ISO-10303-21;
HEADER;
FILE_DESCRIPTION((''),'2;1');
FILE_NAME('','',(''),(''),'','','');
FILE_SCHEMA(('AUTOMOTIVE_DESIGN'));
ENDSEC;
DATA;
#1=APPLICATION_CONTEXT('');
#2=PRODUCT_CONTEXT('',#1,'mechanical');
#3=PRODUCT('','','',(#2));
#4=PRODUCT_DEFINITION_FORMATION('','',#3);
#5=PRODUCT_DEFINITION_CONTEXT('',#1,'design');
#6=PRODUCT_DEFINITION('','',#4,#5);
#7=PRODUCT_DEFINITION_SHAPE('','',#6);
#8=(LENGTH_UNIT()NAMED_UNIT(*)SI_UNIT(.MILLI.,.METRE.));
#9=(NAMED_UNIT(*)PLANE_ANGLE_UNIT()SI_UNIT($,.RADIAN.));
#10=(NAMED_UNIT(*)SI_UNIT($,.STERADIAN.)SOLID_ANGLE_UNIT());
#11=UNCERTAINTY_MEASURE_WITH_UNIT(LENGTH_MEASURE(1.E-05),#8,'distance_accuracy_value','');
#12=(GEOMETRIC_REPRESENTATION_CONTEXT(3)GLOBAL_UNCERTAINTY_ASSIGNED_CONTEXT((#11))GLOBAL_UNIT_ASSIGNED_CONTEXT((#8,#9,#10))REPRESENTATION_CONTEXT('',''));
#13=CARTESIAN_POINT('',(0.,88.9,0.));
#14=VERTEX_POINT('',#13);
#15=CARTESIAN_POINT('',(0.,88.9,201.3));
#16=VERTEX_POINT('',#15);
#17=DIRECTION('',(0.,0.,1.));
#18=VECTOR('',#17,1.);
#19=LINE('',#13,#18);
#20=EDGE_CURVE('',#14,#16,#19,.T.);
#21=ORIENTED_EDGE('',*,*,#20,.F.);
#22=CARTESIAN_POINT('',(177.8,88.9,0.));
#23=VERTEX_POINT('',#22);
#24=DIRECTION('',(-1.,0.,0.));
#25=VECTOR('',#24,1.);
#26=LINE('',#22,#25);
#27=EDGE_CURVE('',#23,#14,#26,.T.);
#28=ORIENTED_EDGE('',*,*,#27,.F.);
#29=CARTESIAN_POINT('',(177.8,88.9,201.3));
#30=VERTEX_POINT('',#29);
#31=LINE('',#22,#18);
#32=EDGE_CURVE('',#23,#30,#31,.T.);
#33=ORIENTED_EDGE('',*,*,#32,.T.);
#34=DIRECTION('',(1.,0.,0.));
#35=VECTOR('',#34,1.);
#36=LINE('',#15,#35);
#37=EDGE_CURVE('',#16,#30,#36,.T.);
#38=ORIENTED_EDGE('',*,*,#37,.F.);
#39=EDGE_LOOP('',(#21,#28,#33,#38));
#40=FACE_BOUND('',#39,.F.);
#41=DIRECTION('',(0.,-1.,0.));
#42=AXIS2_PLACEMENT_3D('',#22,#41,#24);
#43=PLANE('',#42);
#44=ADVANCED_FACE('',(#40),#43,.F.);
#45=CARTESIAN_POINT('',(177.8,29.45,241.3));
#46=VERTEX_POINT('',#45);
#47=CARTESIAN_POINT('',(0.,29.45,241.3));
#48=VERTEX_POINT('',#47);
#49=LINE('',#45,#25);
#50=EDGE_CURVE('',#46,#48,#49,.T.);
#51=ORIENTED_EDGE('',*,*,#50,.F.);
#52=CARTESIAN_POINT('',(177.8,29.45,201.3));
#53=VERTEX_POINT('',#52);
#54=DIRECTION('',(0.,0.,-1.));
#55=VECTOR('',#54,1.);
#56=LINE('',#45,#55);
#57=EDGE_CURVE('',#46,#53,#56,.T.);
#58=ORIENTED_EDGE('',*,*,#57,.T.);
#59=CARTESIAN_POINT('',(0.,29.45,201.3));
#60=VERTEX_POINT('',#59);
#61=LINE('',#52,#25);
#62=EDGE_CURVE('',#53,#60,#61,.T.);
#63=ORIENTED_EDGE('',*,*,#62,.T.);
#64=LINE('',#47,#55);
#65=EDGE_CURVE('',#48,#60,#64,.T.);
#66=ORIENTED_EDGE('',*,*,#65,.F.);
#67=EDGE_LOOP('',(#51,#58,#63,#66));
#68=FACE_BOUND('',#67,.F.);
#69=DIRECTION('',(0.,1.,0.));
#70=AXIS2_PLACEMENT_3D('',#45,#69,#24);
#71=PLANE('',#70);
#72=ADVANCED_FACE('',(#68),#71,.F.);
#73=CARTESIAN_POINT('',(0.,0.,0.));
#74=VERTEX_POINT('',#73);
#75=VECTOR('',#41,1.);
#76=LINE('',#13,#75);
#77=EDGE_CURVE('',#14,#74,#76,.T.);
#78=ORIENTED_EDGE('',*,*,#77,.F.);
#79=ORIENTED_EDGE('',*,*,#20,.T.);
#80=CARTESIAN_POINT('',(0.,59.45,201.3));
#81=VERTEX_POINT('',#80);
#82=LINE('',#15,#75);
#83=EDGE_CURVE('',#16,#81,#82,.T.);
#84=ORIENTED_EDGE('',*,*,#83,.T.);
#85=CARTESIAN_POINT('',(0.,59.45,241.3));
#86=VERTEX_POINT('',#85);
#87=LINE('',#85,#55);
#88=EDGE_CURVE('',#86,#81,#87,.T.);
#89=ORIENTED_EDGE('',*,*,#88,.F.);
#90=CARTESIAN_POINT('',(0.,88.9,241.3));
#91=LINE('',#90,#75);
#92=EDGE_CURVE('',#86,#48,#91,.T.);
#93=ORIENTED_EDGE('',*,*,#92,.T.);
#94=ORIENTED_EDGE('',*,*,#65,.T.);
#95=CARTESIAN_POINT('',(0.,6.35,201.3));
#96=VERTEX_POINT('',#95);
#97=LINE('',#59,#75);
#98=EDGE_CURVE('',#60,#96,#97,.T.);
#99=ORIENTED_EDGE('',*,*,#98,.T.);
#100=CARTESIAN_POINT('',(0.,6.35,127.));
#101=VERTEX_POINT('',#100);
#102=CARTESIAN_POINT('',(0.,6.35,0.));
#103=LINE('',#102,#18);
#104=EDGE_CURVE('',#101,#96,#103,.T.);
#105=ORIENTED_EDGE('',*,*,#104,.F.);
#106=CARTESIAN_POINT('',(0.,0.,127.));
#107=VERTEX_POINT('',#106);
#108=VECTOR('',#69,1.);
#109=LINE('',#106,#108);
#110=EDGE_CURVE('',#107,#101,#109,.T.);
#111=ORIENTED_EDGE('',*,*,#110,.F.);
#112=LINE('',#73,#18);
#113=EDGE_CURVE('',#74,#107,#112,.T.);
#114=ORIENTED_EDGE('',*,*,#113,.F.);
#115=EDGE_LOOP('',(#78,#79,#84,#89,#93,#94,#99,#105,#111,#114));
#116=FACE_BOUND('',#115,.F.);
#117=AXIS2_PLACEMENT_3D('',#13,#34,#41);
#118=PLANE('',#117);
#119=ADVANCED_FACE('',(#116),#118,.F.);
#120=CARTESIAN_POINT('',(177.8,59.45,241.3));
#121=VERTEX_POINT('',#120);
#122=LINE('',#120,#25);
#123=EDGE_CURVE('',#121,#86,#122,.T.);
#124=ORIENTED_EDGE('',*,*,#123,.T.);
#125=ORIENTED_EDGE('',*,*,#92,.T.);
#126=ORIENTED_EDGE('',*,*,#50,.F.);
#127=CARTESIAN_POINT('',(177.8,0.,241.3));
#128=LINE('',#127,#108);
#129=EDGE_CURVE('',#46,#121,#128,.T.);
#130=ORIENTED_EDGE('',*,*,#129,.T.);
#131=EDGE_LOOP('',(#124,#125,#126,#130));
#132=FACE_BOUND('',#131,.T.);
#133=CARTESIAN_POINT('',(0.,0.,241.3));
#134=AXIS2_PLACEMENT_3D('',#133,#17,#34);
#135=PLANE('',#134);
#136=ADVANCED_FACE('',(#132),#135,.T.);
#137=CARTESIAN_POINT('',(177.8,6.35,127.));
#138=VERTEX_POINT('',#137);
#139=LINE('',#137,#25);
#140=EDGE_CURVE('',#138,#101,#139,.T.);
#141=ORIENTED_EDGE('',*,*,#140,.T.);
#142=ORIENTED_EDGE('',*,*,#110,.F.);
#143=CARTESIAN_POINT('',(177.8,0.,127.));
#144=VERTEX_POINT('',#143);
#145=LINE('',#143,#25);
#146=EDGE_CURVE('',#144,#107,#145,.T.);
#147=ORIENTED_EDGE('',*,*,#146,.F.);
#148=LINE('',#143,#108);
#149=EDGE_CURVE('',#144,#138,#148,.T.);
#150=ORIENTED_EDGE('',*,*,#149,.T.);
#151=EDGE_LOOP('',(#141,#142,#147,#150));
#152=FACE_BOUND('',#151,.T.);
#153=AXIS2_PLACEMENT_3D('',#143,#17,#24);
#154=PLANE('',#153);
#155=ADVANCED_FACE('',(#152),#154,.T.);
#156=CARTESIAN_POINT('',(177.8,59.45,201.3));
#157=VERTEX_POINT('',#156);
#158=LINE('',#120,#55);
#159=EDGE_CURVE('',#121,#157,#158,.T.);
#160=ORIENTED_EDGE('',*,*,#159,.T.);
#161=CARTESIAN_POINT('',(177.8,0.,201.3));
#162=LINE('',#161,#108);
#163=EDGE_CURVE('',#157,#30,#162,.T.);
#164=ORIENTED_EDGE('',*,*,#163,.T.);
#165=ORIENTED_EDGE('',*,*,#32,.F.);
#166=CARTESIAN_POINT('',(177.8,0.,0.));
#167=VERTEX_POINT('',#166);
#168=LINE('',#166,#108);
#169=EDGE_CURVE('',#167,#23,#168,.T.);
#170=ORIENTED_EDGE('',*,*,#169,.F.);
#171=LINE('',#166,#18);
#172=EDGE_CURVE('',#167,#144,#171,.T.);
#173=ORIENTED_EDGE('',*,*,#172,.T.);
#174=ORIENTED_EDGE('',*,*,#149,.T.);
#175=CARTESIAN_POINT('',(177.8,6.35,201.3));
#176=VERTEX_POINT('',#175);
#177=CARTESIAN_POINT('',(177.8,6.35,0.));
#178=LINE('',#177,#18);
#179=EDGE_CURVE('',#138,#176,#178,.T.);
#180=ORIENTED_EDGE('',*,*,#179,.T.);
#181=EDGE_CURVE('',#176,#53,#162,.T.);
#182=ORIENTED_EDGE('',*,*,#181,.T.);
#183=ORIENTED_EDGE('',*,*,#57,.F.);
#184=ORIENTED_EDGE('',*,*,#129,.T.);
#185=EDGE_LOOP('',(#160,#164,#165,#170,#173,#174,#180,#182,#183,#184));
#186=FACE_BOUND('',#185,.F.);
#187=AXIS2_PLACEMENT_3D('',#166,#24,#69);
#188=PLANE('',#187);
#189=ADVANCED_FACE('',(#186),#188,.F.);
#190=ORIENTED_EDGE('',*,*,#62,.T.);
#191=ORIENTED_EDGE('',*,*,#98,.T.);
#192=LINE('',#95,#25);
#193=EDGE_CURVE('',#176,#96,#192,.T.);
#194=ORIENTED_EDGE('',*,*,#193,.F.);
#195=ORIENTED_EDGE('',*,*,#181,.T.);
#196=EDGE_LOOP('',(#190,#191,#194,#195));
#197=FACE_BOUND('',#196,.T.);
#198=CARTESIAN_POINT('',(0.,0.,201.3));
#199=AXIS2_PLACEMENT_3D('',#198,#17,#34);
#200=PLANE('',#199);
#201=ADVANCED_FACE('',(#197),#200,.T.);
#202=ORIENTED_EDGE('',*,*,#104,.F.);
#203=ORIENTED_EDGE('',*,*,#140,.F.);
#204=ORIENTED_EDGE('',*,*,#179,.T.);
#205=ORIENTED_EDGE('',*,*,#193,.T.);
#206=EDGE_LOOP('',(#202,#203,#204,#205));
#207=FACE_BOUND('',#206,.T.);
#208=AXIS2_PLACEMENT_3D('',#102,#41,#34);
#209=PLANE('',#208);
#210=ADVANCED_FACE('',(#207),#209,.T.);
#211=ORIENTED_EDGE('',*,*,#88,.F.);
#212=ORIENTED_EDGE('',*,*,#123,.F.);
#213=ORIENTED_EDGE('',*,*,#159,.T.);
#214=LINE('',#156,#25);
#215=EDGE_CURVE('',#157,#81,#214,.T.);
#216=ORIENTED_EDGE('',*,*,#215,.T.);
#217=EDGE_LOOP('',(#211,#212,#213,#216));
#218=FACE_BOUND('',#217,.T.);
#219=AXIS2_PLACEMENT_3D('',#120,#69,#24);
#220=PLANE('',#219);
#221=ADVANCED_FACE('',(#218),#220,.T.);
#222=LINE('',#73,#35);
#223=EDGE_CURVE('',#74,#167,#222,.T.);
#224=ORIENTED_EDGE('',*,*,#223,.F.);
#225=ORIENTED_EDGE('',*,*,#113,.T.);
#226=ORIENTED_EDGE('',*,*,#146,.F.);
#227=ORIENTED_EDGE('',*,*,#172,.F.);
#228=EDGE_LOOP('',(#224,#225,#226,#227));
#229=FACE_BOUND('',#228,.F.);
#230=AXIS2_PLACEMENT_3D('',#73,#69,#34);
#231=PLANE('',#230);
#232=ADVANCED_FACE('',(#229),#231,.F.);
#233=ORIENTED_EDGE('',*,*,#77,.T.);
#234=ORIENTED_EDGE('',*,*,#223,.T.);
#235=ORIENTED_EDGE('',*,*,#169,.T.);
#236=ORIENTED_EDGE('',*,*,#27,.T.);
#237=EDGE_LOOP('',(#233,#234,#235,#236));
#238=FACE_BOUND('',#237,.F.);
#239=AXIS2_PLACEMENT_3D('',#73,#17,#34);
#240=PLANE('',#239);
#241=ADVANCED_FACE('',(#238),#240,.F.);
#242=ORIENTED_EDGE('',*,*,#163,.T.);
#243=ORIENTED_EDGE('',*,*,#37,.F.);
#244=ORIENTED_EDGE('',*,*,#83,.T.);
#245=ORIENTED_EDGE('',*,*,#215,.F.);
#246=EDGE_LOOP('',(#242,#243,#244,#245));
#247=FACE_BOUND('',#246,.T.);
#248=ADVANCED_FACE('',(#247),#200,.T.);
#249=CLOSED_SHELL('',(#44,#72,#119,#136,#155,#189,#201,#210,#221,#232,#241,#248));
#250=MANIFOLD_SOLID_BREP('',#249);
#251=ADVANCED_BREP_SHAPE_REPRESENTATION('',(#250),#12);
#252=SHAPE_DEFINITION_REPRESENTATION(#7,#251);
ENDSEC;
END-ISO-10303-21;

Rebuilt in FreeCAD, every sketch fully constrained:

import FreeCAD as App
import Part
import Sketcher

V = App.Vector
Q = App.Units.Quantity


def add_polygon(sketch, points):
    """Adds a closed chain of lines whose ends are joined by coincident constraints."""
    first, n = sketch.GeometryCount, len(points)
    for a, b in zip(points, points[1:] + points[:1]):
        sketch.addGeometry(Part.LineSegment(App.Vector(*a, 0), App.Vector(*b, 0)), False)
    for i in range(n):
        sketch.addConstraint(Sketcher.Constraint("Coincident", first + i, 2, first + (i + 1) % n, 1))

doc = App.newDocument("Part")
body = doc.addObject("PartDesign::Body", "Body")

# Sketch on XY plane
sketch1 = body.newObject("Sketcher::SketchObject", "Sketch")
sketch1.AttachmentSupport = (doc.getObject("XY_Plane"), [""])
sketch1.MapMode = "FlatFace"
add_polygon(sketch1, [(0, 89), (0, 0), (178, 0), (178, 89)])  # lines 0-3
sketch1.addConstraint([
    Sketcher.Constraint("Vertical", 0),
    Sketcher.Constraint("Horizontal", 1),
    Sketcher.Constraint("Vertical", 2),
    Sketcher.Constraint("Horizontal", 3),
    Sketcher.Constraint("Coincident", 0, 2, -1, 1),
    Sketcher.Constraint("DistanceX", 1, 1, 1, 2, Q("7 in")),
    Sketcher.Constraint("DistanceY", 0, 2, 0, 1, Q("3.5 in")),
])
pad1 = body.newObject("PartDesign::Pad", "Pad")
pad1.Profile = sketch1
pad1.Length = Q("9.5 in")

# Sketch on XZ plane
sketch2 = body.newObject("Sketcher::SketchObject", "Sketch001")
sketch2.AttachmentSupport = (doc.getObject("XZ_Plane"), [""])
sketch2.MapMode = "FlatFace"
add_polygon(sketch2, [(0, 203), (0, 127), (178, 127), (178, 203)])  # lines 0-3
sketch2.addConstraint([
    Sketcher.Constraint("Vertical", 0),
    Sketcher.Constraint("Horizontal", 1),
    Sketcher.Constraint("Vertical", 2),
    Sketcher.Constraint("Horizontal", 3),
    Sketcher.Constraint("PointOnObject", 0, 2, -2),
    Sketcher.Constraint("DistanceY", -1, 1, 0, 2, Q("5 in")),
    Sketcher.Constraint("DistanceY", -1, 1, 2, 2, Q("8 in")),
    Sketcher.Constraint("DistanceX", 1, 1, 1, 2, Q("7 in")),
])
pocket1 = body.newObject("PartDesign::Pocket", "Pocket")
pocket1.Profile = sketch2
pocket1.Length = Q("0.25 in")

# Sketch on XY plane
sketch3 = body.newObject("Sketcher::SketchObject", "Sketch002")
sketch3.AttachmentSupport = (doc.getObject("XY_Plane"), [""])
sketch3.MapMode = "FlatFace"
sketch3.AttachmentOffset = App.Placement(V(0, 0, 9.5 * 25.4), App.Rotation())
add_polygon(sketch3, [(0, 0), (178, 0), (178, 29), (0, 29)])  # lines 0-3
add_polygon(sketch3, [(0, 59), (178, 59), (178, 89), (0, 89)])  # lines 4-7
sketch3.addConstraint([
    Sketcher.Constraint("Horizontal", 0),
    Sketcher.Constraint("Vertical", 1),
    Sketcher.Constraint("Horizontal", 2),
    Sketcher.Constraint("Vertical", 3),
    Sketcher.Constraint("Horizontal", 4),
    Sketcher.Constraint("Vertical", 5),
    Sketcher.Constraint("Horizontal", 6),
    Sketcher.Constraint("Vertical", 7),
    Sketcher.Constraint("Coincident", 3, 2, -1, 1),
    Sketcher.Constraint("PointOnObject", 6, 2, -2),
    Sketcher.Constraint("Vertical", 1, 2, 4, 2),
    Sketcher.Constraint("Equal", 3, 5),
    Sketcher.Constraint("DistanceX", 0, 1, 0, 2, Q("7 in")),
    Sketcher.Constraint("DistanceY", -1, 1, 5, 2, Q("3.5 in")),
    Sketcher.Constraint("DistanceY", 1, 2, 4, 2, Q("1.1811 in")),
])
pocket2 = body.newObject("PartDesign::Pocket", "Pocket001")
pocket2.Profile = sketch3
pocket2.Length = Q("1.5748031 in")

doc.recompute()
